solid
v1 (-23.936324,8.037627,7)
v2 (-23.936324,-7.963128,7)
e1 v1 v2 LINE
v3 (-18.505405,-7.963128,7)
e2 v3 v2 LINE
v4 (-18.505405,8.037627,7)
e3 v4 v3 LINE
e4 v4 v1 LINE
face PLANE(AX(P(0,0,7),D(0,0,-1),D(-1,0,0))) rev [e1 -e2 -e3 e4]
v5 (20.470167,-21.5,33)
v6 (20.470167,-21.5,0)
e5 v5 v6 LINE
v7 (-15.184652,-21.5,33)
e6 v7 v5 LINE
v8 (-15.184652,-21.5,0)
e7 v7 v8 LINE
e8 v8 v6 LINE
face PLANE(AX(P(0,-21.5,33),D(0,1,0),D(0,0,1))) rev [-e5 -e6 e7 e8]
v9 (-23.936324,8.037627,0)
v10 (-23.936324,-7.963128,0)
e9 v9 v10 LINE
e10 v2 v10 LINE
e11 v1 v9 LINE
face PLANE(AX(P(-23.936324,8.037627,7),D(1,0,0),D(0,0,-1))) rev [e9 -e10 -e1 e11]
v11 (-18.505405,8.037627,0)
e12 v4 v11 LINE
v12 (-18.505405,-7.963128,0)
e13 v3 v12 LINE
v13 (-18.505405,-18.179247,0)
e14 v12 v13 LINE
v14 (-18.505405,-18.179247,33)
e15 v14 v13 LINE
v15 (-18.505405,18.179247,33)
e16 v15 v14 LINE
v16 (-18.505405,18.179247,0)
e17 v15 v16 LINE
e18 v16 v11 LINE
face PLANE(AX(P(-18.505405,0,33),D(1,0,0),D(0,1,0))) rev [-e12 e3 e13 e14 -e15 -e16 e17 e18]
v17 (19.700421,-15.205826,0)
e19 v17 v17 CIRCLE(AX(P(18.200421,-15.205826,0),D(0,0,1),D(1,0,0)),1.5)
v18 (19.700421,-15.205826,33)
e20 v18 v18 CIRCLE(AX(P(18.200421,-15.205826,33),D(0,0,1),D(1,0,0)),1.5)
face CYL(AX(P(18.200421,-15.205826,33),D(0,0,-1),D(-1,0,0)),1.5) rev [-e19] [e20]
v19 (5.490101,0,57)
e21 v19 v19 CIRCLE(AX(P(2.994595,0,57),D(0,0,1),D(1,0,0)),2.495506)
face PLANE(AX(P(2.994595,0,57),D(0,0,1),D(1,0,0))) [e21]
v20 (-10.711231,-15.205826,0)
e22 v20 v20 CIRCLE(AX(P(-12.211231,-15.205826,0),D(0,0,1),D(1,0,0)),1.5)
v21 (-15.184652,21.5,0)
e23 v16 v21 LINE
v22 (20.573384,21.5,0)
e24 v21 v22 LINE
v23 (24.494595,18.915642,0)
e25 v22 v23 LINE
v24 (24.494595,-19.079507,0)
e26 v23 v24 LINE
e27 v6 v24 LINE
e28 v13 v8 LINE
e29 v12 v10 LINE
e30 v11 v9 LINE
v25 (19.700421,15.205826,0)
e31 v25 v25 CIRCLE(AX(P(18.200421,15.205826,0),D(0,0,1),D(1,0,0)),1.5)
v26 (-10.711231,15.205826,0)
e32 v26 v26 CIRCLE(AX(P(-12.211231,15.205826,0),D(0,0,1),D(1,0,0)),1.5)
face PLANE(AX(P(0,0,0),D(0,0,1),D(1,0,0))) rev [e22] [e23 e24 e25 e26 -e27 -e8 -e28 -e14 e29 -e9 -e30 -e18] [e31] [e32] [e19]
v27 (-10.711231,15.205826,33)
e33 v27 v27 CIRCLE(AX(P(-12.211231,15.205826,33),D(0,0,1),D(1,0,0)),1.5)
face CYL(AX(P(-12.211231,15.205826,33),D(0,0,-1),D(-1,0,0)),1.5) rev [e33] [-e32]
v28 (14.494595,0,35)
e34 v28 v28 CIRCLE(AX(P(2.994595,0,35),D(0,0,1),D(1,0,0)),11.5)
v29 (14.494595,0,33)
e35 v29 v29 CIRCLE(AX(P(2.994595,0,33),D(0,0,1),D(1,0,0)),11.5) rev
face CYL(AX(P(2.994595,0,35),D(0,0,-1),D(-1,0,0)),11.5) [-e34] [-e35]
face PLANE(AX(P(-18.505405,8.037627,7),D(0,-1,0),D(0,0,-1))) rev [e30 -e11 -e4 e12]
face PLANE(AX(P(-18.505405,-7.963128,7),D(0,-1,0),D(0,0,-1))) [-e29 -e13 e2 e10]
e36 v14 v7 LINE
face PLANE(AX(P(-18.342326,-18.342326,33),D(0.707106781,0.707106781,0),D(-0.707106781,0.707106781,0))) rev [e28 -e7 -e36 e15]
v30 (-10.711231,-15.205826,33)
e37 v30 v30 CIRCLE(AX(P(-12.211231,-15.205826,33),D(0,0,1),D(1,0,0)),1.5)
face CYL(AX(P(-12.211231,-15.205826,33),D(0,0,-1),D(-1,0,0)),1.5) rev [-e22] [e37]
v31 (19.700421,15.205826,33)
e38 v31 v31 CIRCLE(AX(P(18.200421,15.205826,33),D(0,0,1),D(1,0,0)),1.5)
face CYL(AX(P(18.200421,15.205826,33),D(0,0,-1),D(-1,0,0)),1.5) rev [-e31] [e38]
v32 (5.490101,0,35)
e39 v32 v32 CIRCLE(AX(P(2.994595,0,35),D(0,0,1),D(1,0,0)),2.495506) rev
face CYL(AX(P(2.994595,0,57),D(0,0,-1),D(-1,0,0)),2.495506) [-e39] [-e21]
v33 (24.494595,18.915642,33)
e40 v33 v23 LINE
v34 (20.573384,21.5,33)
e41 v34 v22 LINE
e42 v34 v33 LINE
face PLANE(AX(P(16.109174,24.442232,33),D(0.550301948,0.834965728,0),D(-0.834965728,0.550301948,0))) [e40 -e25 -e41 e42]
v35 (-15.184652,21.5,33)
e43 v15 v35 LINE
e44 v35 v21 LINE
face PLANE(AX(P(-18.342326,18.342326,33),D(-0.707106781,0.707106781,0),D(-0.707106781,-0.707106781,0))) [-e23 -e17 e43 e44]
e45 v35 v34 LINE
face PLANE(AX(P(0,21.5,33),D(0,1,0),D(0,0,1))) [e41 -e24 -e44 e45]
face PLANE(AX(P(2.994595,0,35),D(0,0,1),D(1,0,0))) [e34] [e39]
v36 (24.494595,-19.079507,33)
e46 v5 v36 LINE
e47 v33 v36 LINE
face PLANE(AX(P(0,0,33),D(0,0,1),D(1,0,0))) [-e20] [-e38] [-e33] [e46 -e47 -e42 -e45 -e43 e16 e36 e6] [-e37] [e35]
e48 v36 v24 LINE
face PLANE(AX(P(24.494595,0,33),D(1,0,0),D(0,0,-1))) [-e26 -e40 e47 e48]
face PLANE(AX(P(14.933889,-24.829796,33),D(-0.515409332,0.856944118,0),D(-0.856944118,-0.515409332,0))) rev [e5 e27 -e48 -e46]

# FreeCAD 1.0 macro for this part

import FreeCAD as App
import Part
import Sketcher

doc = App.newDocument("Part")
body = doc.addObject("PartDesign::Body", "Body")

# Sketch on XY plane
sketch1 = doc.addObject("Sketcher::SketchObject", "Sketch")
body.addObject(sketch1)
sketch1.AttachmentSupport = (doc.XY_Plane, [""])
sketch1.MapMode = "FlatFace"
sketch1.addGeometry(Part.LineSegment(App.Vector(-15.184652, 21.5, 0), App.Vector(-18.505405, 18.179247, 0)), False)
sketch1.addGeometry(Part.LineSegment(App.Vector(-18.505405, 18.179247, 0), App.Vector(-18.505405, -18.179247, 0)), False)
sketch1.addGeometry(Part.LineSegment(App.Vector(-18.505405, -18.179247, 0), App.Vector(-15.184652, -21.5, 0)), False)
sketch1.addGeometry(Part.LineSegment(App.Vector(-15.184652, -21.5, 0), App.Vector(20.470167, -21.5, 0)), False)
sketch1.addGeometry(Part.LineSegment(App.Vector(20.470167, -21.5, 0), App.Vector(24.494595, -19.079507, 0)), False)
sketch1.addGeometry(Part.LineSegment(App.Vector(24.494595, -19.079507, 0), App.Vector(24.494595, 18.915642, 0)), False)
sketch1.addGeometry(Part.LineSegment(App.Vector(24.494595, 18.915642, 0), App.Vector(20.573384, 21.5, 0)), False)
sketch1.addGeometry(Part.LineSegment(App.Vector(20.573384, 21.5, 0), App.Vector(-15.184652, 21.5, 0)), False)
sketch1.addGeometry(Part.Circle(App.Vector(-12.211231, -15.205826, 0), App.Vector(0, 0, 1), 1.5), False)
sketch1.addGeometry(Part.Circle(App.Vector(18.200421, -15.205826, 0), App.Vector(0, 0, 1), 1.5), False)
sketch1.addGeometry(Part.Circle(App.Vector(-12.211231, 15.205826, 0), App.Vector(0, 0, 1), 1.5), False)
sketch1.addGeometry(Part.Circle(App.Vector(18.200421, 15.205826, 0), App.Vector(0, 0, 1), 1.5), False)
sketch1.addConstraint(Sketcher.Constraint("Coincident", 0, 2, 1, 1))
sketch1.addConstraint(Sketcher.Constraint("Coincident", 1, 2, 2, 1))
sketch1.addConstraint(Sketcher.Constraint("Coincident", 2, 2, 3, 1))
sketch1.addConstraint(Sketcher.Constraint("Coincident", 3, 2, 4, 1))
sketch1.addConstraint(Sketcher.Constraint("Coincident", 4, 2, 5, 1))
sketch1.addConstraint(Sketcher.Constraint("Coincident", 5, 2, 6, 1))
sketch1.addConstraint(Sketcher.Constraint("Coincident", 6, 2, 7, 1))
sketch1.addConstraint(Sketcher.Constraint("Coincident", 7, 2, 0, 1))
sketch1.addConstraint(Sketcher.Constraint("Vertical", 1))
sketch1.addConstraint(Sketcher.Constraint("Horizontal", 3))
sketch1.addConstraint(Sketcher.Constraint("Vertical", 5))
sketch1.addConstraint(Sketcher.Constraint("Horizontal", 7))
sketch1.addConstraint(Sketcher.Constraint("Equal", 8, 9))
sketch1.addConstraint(Sketcher.Constraint("Equal", 9, 10))
sketch1.addConstraint(Sketcher.Constraint("Equal", 10, 11))
sketch1.addConstraint(Sketcher.Constraint("Symmetric", 8, 3, 10, 3, -1))
sketch1.addConstraint(Sketcher.Constraint("Symmetric", 9, 3, 11, 3, -1))
sketch1.addConstraint(Sketcher.Constraint("Symmetric", 2, 2, 7, 2, -1))
sketch1.addConstraint(Sketcher.Constraint("Perpendicular", 0, 2))
sketch1.addConstraint(Sketcher.Constraint("Horizontal", 8, 3, 9, 3))
sketch1.addConstraint(Sketcher.Constraint("Equal", 0, 2))
sketch1.addConstraint(Sketcher.Constraint("Equal", 2, 4))
sketch1.addConstraint(Sketcher.Constraint("Equal", 4, 6))
sketch1.addConstraint(Sketcher.Constraint("Diameter", 8, 3.0))
sketch1.addConstraint(Sketcher.Constraint("DistanceY", 2, 2, -1, 1, 21.5))
sketch1.addConstraint(Sketcher.Constraint("DistanceX", 3, 1, 3, 2, 35.654819))
sketch1.addConstraint(Sketcher.Constraint("DistanceY", 5, 1, 5, 2, 37.995149))
sketch1.addConstraint(Sketcher.Constraint("DistanceX", 8, 3, 3, 2, 32.681398))
sketch1.addConstraint(Sketcher.Constraint("DistanceX", 7, 2, 7, 1, 35.758035))
sketch1.addConstraint(Sketcher.Constraint("DistanceY", 1, 2, 1, 1, 36.358493))
sketch1.addConstraint(Sketcher.Constraint("DistanceX", 8, 3, -1, 1, 12.211231))
sketch1.addConstraint(Sketcher.Constraint("DistanceX", -1, 1, 9, 3, 18.200421))
sketch1.addConstraint(Sketcher.Constraint("DistanceY", 8, 3, 10, 3, 30.411652))
pad1 = doc.addObject("PartDesign::Pad", "Pad")
body.addObject(pad1)
pad1.Profile = sketch1
pad1.Length = 33

# Sketch on XY plane
sketch2 = doc.addObject("Sketcher::SketchObject", "Sketch001")
body.addObject(sketch2)
sketch2.AttachmentSupport = (doc.XY_Plane, [""])
sketch2.MapMode = "FlatFace"
sketch2.addGeometry(Part.Circle(App.Vector(2.994595, 0, 0), App.Vector(0, 0, 1), 11.5), False)
sketch2.addConstraint(Sketcher.Constraint("PointOnObject", 0, 3, -1))
sketch2.addConstraint(Sketcher.Constraint("Diameter", 0, 23.0))
sketch2.addConstraint(Sketcher.Constraint("DistanceX", -1, 1, 0, 3, 2.994595))
pad2 = doc.addObject("PartDesign::Pad", "Pad001")
body.addObject(pad2)
pad2.Profile = sketch2
pad2.Length = 35

# Sketch on XY plane
sketch3 = doc.addObject("Sketcher::SketchObject", "Sketch002")
body.addObject(sketch3)
sketch3.AttachmentSupport = (doc.XY_Plane, [""])
sketch3.MapMode = "FlatFace"
sketch3.addGeometry(Part.Circle(App.Vector(2.994595, 0, 0), App.Vector(0, 0, 1), 2.495506), False)
sketch3.addConstraint(Sketcher.Constraint("PointOnObject", 0, 3, -1))
sketch3.addConstraint(Sketcher.Constraint("Diameter", 0, 4.991012))
sketch3.addConstraint(Sketcher.Constraint("DistanceX", -1, 1, 0, 3, 2.994595))
pad3 = doc.addObject("PartDesign::Pad", "Pad002")
body.addObject(pad3)
pad3.Profile = sketch3
pad3.Length = 57

# Sketch on XY plane
sketch4 = doc.addObject("Sketcher::SketchObject", "Sketch003")
body.addObject(sketch4)
sketch4.AttachmentSupport = (doc.XY_Plane, [""])
sketch4.MapMode = "FlatFace"
sketch4.addGeometry(Part.LineSegment(App.Vector(-23.936324, 8.037627, 0), App.Vector(-23.936324, -7.963128, 0)), False)
sketch4.addGeometry(Part.LineSegment(App.Vector(-23.936324, -7.963128, 0), App.Vector(-18.505405, -7.963128, 0)), False)
sketch4.addGeometry(Part.LineSegment(App.Vector(-18.505405, -7.963128, 0), App.Vector(-18.505405, 8.037627, 0)), False)
sketch4.addGeometry(Part.LineSegment(App.Vector(-18.505405, 8.037627, 0), App.Vector(-23.936324, 8.037627, 0)), False)
sketch4.addConstraint(Sketcher.Constraint("Coincident", 0, 2, 1, 1))
sketch4.addConstraint(Sketcher.Constraint("Coincident", 1, 2, 2, 1))
sketch4.addConstraint(Sketcher.Constraint("Coincident", 2, 2, 3, 1))
sketch4.addConstraint(Sketcher.Constraint("Coincident", 3, 2, 0, 1))
sketch4.addConstraint(Sketcher.Constraint("Vertical", 0))
sketch4.addConstraint(Sketcher.Constraint("Horizontal", 1))
sketch4.addConstraint(Sketcher.Constraint("Vertical", 2))
sketch4.addConstraint(Sketcher.Constraint("Horizontal", 3))
sketch4.addConstraint(Sketcher.Constraint("DistanceX", 1, 1, 1, 2, 5.430919))
sketch4.addConstraint(Sketcher.Constraint("DistanceY", 0, 2, 0, 1, 16.000755))
sketch4.addConstraint(Sketcher.Constraint("DistanceY", 0, 2, -1, 1, 7.963128))
sketch4.addConstraint(Sketcher.Constraint("DistanceX", 0, 2, -1, 1, 23.936324))
pad4 = doc.addObject("PartDesign::Pad", "Pad003")
body.addObject(pad4)
pad4.Profile = sketch4
pad4.Length = 7

doc.recompute()
